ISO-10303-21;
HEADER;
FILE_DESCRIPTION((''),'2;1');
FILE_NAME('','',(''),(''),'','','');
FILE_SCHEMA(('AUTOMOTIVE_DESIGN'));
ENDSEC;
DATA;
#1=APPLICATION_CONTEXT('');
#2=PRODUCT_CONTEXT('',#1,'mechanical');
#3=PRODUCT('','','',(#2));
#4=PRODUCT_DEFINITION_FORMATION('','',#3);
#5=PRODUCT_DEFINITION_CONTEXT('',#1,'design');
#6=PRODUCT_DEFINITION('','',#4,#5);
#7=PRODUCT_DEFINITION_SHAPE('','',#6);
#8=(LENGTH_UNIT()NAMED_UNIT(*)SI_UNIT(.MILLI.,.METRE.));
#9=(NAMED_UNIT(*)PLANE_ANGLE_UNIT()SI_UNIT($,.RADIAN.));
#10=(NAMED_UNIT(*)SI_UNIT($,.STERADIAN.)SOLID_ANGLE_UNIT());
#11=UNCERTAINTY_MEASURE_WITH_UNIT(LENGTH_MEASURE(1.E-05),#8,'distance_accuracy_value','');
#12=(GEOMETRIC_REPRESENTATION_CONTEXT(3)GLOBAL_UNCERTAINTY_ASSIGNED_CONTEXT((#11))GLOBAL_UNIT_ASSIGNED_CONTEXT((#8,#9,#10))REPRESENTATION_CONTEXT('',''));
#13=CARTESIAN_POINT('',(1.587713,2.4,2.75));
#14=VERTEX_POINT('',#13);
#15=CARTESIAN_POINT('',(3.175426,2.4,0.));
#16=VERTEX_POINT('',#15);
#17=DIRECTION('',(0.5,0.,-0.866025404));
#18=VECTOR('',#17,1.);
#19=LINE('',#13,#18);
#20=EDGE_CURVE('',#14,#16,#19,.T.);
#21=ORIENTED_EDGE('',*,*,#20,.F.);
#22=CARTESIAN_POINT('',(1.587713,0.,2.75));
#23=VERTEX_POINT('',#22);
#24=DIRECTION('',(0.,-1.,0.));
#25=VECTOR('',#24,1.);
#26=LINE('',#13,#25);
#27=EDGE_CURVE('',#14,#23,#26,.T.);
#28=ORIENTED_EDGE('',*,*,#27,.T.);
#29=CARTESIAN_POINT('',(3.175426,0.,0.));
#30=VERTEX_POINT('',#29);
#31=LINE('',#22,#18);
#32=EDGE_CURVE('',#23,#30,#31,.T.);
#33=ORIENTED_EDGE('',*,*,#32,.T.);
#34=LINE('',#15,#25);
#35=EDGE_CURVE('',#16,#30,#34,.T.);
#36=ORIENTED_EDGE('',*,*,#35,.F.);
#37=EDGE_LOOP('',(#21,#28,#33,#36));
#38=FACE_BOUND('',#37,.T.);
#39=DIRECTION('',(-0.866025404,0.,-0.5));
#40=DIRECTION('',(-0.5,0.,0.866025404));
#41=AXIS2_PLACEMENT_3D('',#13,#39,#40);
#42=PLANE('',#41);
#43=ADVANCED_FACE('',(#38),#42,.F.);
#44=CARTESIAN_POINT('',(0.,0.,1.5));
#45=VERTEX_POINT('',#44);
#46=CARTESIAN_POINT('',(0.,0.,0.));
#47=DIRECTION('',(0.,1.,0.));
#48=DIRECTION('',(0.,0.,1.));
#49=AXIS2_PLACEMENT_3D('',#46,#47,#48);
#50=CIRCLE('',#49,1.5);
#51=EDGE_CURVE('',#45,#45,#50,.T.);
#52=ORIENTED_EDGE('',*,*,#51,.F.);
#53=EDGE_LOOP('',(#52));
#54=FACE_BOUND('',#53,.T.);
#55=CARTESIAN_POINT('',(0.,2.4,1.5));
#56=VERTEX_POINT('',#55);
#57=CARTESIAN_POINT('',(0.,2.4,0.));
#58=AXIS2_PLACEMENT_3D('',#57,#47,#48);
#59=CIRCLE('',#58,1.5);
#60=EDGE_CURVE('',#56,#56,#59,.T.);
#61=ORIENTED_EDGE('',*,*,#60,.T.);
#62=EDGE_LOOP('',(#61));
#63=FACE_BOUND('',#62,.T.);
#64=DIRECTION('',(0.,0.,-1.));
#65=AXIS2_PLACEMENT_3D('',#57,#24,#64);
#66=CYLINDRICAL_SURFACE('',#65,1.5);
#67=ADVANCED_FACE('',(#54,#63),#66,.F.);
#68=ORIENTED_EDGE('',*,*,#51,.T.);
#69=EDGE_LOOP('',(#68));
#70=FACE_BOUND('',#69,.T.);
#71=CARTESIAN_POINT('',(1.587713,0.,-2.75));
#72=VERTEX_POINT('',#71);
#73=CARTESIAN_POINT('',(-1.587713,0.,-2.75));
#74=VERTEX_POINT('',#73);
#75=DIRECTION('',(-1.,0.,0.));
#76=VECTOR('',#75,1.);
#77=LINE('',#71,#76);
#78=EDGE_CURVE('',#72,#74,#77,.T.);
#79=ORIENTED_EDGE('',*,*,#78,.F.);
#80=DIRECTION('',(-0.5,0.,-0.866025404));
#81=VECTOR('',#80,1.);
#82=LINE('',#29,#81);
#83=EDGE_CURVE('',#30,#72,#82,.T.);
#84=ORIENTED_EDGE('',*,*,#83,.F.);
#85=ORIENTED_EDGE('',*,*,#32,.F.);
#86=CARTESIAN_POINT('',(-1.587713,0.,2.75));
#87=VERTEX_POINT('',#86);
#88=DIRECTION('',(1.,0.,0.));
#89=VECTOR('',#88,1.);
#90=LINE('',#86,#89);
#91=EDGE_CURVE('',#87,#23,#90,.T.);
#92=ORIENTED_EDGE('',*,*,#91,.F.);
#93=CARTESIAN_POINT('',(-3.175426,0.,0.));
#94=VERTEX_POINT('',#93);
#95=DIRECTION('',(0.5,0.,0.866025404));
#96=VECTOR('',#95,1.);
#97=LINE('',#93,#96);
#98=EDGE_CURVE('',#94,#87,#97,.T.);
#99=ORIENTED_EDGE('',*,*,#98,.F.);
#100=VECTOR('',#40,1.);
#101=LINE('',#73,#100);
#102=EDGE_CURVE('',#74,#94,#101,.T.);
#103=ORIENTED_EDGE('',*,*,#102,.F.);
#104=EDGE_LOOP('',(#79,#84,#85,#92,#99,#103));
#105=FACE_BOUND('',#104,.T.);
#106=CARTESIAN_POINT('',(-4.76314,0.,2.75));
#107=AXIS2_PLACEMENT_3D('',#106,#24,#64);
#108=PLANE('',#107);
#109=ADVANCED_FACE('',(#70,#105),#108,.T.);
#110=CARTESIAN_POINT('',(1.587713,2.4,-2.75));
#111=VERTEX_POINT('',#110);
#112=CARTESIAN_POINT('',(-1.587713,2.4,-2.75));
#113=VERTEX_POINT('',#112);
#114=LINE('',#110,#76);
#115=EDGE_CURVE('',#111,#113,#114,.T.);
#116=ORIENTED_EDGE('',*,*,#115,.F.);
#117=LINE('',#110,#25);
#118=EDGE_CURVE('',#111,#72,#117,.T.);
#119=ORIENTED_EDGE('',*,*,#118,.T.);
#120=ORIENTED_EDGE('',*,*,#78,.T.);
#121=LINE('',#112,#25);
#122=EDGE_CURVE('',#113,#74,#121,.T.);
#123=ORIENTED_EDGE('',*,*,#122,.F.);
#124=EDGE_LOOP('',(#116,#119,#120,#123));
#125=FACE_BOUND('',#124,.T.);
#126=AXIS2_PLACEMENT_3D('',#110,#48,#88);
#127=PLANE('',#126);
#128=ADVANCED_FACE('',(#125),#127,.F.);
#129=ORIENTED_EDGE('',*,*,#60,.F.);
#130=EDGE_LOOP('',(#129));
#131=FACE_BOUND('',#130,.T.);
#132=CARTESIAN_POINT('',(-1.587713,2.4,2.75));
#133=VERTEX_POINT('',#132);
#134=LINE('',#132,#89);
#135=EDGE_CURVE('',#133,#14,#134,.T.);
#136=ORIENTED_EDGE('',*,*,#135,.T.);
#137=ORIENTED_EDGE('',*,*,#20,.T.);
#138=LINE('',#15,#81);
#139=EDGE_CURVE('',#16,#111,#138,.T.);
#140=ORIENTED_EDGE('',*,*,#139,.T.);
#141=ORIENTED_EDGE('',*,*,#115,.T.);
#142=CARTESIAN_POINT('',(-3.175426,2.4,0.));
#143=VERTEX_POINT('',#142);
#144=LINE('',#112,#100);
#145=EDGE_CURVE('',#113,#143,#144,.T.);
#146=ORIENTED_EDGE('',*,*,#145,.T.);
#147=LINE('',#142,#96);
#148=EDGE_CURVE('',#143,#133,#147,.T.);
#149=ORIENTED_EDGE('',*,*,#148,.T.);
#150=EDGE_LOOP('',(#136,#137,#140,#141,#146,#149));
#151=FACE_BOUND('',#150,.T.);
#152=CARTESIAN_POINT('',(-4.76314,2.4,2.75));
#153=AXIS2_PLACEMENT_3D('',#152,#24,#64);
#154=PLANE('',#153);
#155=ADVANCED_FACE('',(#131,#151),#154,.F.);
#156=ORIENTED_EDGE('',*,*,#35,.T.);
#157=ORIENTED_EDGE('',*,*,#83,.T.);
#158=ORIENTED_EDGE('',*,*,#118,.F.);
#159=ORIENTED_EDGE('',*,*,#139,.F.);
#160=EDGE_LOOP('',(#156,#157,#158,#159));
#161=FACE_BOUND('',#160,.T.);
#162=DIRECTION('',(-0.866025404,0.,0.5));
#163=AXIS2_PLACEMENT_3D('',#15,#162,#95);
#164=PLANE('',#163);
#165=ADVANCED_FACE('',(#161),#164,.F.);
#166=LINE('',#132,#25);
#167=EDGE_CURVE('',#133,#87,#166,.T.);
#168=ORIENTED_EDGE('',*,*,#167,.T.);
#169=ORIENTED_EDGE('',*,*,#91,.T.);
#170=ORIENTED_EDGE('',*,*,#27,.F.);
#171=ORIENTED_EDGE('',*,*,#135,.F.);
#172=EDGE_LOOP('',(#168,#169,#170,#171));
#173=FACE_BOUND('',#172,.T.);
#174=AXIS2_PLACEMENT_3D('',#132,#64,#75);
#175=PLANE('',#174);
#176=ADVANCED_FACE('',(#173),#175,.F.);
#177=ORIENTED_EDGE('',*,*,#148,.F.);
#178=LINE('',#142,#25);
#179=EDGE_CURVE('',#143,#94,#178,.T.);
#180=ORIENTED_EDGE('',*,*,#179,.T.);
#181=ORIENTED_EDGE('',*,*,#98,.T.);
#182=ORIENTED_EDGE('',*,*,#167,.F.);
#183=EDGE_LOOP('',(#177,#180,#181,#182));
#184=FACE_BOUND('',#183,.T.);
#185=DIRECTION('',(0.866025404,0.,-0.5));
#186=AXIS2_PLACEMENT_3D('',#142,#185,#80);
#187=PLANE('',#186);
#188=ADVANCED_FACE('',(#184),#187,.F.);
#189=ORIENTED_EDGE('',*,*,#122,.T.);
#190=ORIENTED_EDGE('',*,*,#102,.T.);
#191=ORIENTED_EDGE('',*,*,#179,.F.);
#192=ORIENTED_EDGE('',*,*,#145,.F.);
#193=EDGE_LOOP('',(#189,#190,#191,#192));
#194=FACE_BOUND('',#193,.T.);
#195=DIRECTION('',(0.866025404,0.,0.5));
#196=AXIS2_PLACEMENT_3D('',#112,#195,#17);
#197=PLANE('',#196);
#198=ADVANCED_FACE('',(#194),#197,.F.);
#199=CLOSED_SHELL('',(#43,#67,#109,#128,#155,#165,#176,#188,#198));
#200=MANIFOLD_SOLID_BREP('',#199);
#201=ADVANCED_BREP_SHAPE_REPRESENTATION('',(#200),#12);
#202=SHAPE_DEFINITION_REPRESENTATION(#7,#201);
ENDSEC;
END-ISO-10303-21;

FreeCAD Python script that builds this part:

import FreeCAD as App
import Part
import Sketcher
from FreeCAD import Vector
Q = App.Units.Quantity


def add_polygon(sketch, points):
    """Adds a closed chain of lines whose ends are joined by coincident constraints."""
    first, n = sketch.GeometryCount, len(points)
    for a, b in zip(points, points[1:] + points[:1]):
        sketch.addGeometry(Part.LineSegment(App.Vector(*a, 0), App.Vector(*b, 0)), False)
    for i in range(n):
        sketch.addConstraint(Sketcher.Constraint("Coincident", first + i, 2, first + (i + 1) % n, 1))

doc = App.newDocument("Part")
body = doc.addObject("PartDesign::Body", "Body")

sketch1 = doc.addObject("Sketcher::SketchObject", "Sketch")
body.addObject(sketch1)
sketch1.AttachmentSupport = (doc.XZ_Plane, [""])
sketch1.MapMode = "FlatFace"
add_polygon(sketch1, [(1.587713, 2.75), (3.175426, 0), (1.587713, -2.75), (-1.587713, -2.75), (-3.175426, 0), (-1.587713, 2.75)])
sketch1.addGeometry(Part.Circle(Vector(0, 0, 0), Vector(0, 0, 1), 1.5), False)
sketch1.addConstraint([
    Sketcher.Constraint("Horizontal", 2),
    Sketcher.Constraint("Horizontal", 5),
    Sketcher.Constraint("Coincident", 6, 3, -1, 1),
    Sketcher.Constraint("Symmetric", 0, 2, 3, 2, -1, 1),
    Sketcher.Constraint("Symmetric", 1, 2, 4, 2, -1, 1),
    Sketcher.Constraint("PointOnObject", 0, 2, -1),
    Sketcher.Constraint("Parallel", 0, 3),
    Sketcher.Constraint("Vertical", 2, 2, 4, 2),
    Sketcher.Constraint("Diameter", 6, Q("3 mm")),
    Sketcher.Constraint("Angle", 0, Q("-60 deg")),
    Sketcher.Constraint("DistanceY", 2, 2, 4, 2, Q("5.5 mm")),
    Sketcher.Constraint("DistanceX", 2, 2, 2, 1, Q("3.175426 mm")),
])
pad1 = doc.addObject("PartDesign::Pad", "Pad")
body.addObject(pad1)
pad1.Profile = sketch1
pad1.Length = 2.4
pad1.Reversed = True

doc.recompute()
